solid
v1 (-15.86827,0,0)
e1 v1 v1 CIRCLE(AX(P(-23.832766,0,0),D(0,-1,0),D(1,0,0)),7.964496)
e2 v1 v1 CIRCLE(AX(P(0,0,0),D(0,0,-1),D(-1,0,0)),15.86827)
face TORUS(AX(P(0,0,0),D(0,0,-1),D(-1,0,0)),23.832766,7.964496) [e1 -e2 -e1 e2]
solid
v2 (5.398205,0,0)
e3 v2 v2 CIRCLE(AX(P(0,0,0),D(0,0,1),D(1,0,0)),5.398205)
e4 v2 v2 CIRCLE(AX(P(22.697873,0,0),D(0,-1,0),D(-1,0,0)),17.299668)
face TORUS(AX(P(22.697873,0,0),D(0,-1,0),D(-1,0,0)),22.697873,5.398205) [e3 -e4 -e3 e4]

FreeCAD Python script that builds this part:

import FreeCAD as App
import Part
import Sketcher

doc = App.newDocument("Part")
params = doc.addObject("Spreadsheet::Sheet", "Params")
for row, (alias, value) in enumerate([
    ("revolution_angle", "360 deg"),
    ("sketch2_height", "10 mm"),
    ("revolution2_angle", "360 deg"),
], start=1):
    params.set(f"A{row}", alias)
    params.set(f"B{row}", "=" + value)
    params.setAlias(f"B{row}", alias)

body = doc.addObject("PartDesign::Body", "Body")

# Sketch on XZ plane
sketch1 = body.newObject("Sketcher::SketchObject", "Sketch")
sketch1.AttachmentSupport = (doc.getObject("XZ_Plane"), [""])
sketch1.MapMode = "FlatFace"
sketch1.addGeometry(Part.Circle(App.Vector(-23.832766, 0, 0), App.Vector(0, 0, 1), 7.964496), False)
sketch1.addConstraint([
    Sketcher.Constraint("PointOnObject", 0, 3, -1),
    Sketcher.Constraint("Diameter", 0, 15.928992),
    Sketcher.Constraint("DistanceX", 0, 3, -1, 1, 23.832766),
])
revolution = body.newObject("PartDesign::Revolution", "Revolution")
revolution.Profile = sketch1
revolution.ReferenceAxis = (sketch1, ["V_Axis"])
revolution.setExpression("Angle", "Params.revolution_angle")
body2 = doc.addObject("PartDesign::Body", "Body001")

# Sketch on XY plane
sketch2 = body2.newObject("Sketcher::SketchObject", "Sketch001")
sketch2.AttachmentSupport = (doc.getObject("XY_Plane001"), [""])
sketch2.MapMode = "FlatFace"
sketch2.addGeometry(Part.Circle(App.Vector(0, 0, 0), App.Vector(0, 0, 1), 5.398205), False)
sketch2.addGeometry(Part.LineSegment(App.Vector(22.697873, 0, 0), App.Vector(22.697873, -10, 0)), True)  # axis
sketch2.addConstraint([
    Sketcher.Constraint("Vertical", 1),
    Sketcher.Constraint("Coincident", 0, 3, -1, 1),
    Sketcher.Constraint("PointOnObject", 1, 1, -1),
    Sketcher.Constraint("DistanceY", 1, 2, 1, 1, 10.0),
    Sketcher.Constraint("Diameter", 0, 10.79641),
    Sketcher.Constraint("DistanceX", -1, 1, 1, 1, 22.697873),
])
sketch2.setExpression("Constraints[3]", "Params.sketch2_height")
revolution2 = body2.newObject("PartDesign::Revolution", "Revolution001")
revolution2.Profile = sketch2
revolution2.ReferenceAxis = (sketch2, ["Axis0"])
revolution2.setExpression("Angle", "Params.revolution2_angle")

doc.recompute()
